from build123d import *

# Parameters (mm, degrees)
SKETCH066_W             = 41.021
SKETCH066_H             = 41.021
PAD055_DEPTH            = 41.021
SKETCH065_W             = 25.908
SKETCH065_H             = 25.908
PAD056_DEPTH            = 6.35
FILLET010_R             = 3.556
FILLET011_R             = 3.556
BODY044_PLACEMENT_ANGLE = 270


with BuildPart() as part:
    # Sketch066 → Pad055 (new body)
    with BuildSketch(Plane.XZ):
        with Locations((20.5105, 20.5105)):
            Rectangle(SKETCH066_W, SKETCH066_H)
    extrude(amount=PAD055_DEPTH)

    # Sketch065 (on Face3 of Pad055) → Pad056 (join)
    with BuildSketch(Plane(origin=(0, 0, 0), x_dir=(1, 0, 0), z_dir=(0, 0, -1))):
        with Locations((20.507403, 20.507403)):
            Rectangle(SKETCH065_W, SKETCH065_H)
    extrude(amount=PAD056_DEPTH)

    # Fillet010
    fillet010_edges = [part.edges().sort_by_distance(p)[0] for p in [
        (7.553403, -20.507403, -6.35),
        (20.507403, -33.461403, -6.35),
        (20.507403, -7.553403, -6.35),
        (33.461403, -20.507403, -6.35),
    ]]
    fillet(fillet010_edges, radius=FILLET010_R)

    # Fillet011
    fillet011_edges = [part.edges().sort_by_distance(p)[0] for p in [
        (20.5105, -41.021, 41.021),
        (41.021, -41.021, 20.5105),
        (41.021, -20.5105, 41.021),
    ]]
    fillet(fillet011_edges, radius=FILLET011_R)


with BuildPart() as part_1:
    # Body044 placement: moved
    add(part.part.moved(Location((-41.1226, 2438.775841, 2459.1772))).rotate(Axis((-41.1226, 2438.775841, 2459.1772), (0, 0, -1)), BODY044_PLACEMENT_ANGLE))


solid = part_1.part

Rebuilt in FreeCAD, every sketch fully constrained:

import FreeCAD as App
import Part
import Sketcher
from FreeCAD import Vector
Q = App.Units.Quantity


def edges_at(feature, points):
    """Names of the edges that pass closest to the given points."""
    edges = feature.Shape.Edges
    near = lambda p: min(range(len(edges)), key=lambda i: edges[i].distToShape(Part.Vertex(*p))[0])
    return sorted({f"Edge{near(p) + 1}" for p in points})


def add_polygon(sketch, points):
    """Adds a closed chain of lines whose ends are joined by coincident constraints."""
    first, n = sketch.GeometryCount, len(points)
    for a, b in zip(points, points[1:] + points[:1]):
        sketch.addGeometry(Part.LineSegment(App.Vector(*a, 0), App.Vector(*b, 0)), False)
    for i in range(n):
        sketch.addConstraint(Sketcher.Constraint("Coincident", first + i, 2, first + (i + 1) % n, 1))

doc = App.newDocument("Part")
params = doc.addObject("Spreadsheet::Sheet", "Params")
for row, (alias, value) in enumerate([
    ("sketch1_width", "1.615 in"),
    ("pad1_length", "1.615 in"),
    ("sketch2_width", "1.02 in"),
    ("pad2_length", "0.25 in"),
    ("fillet_radius", "0.14 in"),
    ("fillet2_radius", "0.14 in"),
], start=1):
    params.set(f"A{row}", alias)
    params.set(f"B{row}", "=" + value)
    params.setAlias(f"B{row}", alias)

body = doc.addObject("PartDesign::Body", "Body")

# Sketch on XZ plane
sketch1 = body.newObject("Sketcher::SketchObject", "Sketch")
sketch1.AttachmentSupport = (doc.getObject("XZ_Plane"), [""])
sketch1.MapMode = "FlatFace"
add_polygon(sketch1, [(0, 41.021), (0, 0), (41.021, 0), (41.021, 41.021)])  # lines 0-3
sketch1.addConstraint([
    Sketcher.Constraint("Vertical", 0),
    Sketcher.Constraint("Horizontal", 1),
    Sketcher.Constraint("Vertical", 2),
    Sketcher.Constraint("Horizontal", 3),
    Sketcher.Constraint("Coincident", 0, 2, -1, 1),
    Sketcher.Constraint("Equal", 3, 0),
    Sketcher.Constraint("DistanceX", 1, 1, 1, 2, Q("1.615 in")),
])
sketch1.setExpression("Constraints[10]", "Params.sketch1_width")
pad1 = body.newObject("PartDesign::Pad", "Pad")
pad1.Profile = sketch1
pad1.setExpression("Length", "Params.pad1_length")

# Sketch on XY plane
sketch2 = body.newObject("Sketcher::SketchObject", "Sketch001")
sketch2.AttachmentSupport = (doc.getObject("XY_Plane"), [""])
sketch2.MapMode = "FlatFace"
add_polygon(sketch2, [(7.553403, -33.461403), (7.553403, -7.553403), (33.461403, -7.553403), (33.461403, -33.461403)])  # lines 0-3
sketch2.addConstraint([
    Sketcher.Constraint("Vertical", 0),
    Sketcher.Constraint("Horizontal", 1),
    Sketcher.Constraint("Vertical", 2),
    Sketcher.Constraint("Horizontal", 3),
    Sketcher.Constraint("Equal", 3, 0),
    Sketcher.Constraint("DistanceX", 1, 1, 1, 2, Q("1.02 in")),
    Sketcher.Constraint("DistanceX", -1, 1, 0, 2, Q("7.553403 mm")),
    Sketcher.Constraint("DistanceY", 0, 2, -1, 1, Q("7.553403 mm")),
])
sketch2.setExpression("Constraints[9]", "Params.sketch2_width")
pad2 = body.newObject("PartDesign::Pad", "Pad001")
pad2.Profile = sketch2
pad2.setExpression("Length", "Params.pad2_length")
pad2.Reversed = True
doc.recompute()

fillet = body.newObject("PartDesign::Fillet", "Fillet")
fillet.Base = (pad2, edges_at(pad2, [
    (7.553, -20.507, -6.35),
    (20.507, -33.461, -6.35),
    (20.507, -7.553, -6.35),
    (33.461, -20.507, -6.35),
]))
fillet.setExpression("Radius", "Params.fillet_radius")
doc.recompute()

fillet2 = body.newObject("PartDesign::Fillet", "Fillet001")
fillet2.Base = (fillet, edges_at(fillet, [(20.511, -41.021, 41.021), (41.021, -41.021, 20.511), (41.021, -20.511, 41.021)]))
fillet2.setExpression("Radius", "Params.fillet2_radius")
body2 = doc.addObject("PartDesign::Body", "Body001")
doc.recompute()

body.Placement = App.Placement(Vector(-41.1226, 2438.775841, 2459.1772), App.Rotation(Vector(0, 0, -1), 270))
boolean = body2.newObject("PartDesign::Boolean", "Boolean")
boolean.Type = "Fuse"
boolean.addObjects([body])

doc.recompute()
